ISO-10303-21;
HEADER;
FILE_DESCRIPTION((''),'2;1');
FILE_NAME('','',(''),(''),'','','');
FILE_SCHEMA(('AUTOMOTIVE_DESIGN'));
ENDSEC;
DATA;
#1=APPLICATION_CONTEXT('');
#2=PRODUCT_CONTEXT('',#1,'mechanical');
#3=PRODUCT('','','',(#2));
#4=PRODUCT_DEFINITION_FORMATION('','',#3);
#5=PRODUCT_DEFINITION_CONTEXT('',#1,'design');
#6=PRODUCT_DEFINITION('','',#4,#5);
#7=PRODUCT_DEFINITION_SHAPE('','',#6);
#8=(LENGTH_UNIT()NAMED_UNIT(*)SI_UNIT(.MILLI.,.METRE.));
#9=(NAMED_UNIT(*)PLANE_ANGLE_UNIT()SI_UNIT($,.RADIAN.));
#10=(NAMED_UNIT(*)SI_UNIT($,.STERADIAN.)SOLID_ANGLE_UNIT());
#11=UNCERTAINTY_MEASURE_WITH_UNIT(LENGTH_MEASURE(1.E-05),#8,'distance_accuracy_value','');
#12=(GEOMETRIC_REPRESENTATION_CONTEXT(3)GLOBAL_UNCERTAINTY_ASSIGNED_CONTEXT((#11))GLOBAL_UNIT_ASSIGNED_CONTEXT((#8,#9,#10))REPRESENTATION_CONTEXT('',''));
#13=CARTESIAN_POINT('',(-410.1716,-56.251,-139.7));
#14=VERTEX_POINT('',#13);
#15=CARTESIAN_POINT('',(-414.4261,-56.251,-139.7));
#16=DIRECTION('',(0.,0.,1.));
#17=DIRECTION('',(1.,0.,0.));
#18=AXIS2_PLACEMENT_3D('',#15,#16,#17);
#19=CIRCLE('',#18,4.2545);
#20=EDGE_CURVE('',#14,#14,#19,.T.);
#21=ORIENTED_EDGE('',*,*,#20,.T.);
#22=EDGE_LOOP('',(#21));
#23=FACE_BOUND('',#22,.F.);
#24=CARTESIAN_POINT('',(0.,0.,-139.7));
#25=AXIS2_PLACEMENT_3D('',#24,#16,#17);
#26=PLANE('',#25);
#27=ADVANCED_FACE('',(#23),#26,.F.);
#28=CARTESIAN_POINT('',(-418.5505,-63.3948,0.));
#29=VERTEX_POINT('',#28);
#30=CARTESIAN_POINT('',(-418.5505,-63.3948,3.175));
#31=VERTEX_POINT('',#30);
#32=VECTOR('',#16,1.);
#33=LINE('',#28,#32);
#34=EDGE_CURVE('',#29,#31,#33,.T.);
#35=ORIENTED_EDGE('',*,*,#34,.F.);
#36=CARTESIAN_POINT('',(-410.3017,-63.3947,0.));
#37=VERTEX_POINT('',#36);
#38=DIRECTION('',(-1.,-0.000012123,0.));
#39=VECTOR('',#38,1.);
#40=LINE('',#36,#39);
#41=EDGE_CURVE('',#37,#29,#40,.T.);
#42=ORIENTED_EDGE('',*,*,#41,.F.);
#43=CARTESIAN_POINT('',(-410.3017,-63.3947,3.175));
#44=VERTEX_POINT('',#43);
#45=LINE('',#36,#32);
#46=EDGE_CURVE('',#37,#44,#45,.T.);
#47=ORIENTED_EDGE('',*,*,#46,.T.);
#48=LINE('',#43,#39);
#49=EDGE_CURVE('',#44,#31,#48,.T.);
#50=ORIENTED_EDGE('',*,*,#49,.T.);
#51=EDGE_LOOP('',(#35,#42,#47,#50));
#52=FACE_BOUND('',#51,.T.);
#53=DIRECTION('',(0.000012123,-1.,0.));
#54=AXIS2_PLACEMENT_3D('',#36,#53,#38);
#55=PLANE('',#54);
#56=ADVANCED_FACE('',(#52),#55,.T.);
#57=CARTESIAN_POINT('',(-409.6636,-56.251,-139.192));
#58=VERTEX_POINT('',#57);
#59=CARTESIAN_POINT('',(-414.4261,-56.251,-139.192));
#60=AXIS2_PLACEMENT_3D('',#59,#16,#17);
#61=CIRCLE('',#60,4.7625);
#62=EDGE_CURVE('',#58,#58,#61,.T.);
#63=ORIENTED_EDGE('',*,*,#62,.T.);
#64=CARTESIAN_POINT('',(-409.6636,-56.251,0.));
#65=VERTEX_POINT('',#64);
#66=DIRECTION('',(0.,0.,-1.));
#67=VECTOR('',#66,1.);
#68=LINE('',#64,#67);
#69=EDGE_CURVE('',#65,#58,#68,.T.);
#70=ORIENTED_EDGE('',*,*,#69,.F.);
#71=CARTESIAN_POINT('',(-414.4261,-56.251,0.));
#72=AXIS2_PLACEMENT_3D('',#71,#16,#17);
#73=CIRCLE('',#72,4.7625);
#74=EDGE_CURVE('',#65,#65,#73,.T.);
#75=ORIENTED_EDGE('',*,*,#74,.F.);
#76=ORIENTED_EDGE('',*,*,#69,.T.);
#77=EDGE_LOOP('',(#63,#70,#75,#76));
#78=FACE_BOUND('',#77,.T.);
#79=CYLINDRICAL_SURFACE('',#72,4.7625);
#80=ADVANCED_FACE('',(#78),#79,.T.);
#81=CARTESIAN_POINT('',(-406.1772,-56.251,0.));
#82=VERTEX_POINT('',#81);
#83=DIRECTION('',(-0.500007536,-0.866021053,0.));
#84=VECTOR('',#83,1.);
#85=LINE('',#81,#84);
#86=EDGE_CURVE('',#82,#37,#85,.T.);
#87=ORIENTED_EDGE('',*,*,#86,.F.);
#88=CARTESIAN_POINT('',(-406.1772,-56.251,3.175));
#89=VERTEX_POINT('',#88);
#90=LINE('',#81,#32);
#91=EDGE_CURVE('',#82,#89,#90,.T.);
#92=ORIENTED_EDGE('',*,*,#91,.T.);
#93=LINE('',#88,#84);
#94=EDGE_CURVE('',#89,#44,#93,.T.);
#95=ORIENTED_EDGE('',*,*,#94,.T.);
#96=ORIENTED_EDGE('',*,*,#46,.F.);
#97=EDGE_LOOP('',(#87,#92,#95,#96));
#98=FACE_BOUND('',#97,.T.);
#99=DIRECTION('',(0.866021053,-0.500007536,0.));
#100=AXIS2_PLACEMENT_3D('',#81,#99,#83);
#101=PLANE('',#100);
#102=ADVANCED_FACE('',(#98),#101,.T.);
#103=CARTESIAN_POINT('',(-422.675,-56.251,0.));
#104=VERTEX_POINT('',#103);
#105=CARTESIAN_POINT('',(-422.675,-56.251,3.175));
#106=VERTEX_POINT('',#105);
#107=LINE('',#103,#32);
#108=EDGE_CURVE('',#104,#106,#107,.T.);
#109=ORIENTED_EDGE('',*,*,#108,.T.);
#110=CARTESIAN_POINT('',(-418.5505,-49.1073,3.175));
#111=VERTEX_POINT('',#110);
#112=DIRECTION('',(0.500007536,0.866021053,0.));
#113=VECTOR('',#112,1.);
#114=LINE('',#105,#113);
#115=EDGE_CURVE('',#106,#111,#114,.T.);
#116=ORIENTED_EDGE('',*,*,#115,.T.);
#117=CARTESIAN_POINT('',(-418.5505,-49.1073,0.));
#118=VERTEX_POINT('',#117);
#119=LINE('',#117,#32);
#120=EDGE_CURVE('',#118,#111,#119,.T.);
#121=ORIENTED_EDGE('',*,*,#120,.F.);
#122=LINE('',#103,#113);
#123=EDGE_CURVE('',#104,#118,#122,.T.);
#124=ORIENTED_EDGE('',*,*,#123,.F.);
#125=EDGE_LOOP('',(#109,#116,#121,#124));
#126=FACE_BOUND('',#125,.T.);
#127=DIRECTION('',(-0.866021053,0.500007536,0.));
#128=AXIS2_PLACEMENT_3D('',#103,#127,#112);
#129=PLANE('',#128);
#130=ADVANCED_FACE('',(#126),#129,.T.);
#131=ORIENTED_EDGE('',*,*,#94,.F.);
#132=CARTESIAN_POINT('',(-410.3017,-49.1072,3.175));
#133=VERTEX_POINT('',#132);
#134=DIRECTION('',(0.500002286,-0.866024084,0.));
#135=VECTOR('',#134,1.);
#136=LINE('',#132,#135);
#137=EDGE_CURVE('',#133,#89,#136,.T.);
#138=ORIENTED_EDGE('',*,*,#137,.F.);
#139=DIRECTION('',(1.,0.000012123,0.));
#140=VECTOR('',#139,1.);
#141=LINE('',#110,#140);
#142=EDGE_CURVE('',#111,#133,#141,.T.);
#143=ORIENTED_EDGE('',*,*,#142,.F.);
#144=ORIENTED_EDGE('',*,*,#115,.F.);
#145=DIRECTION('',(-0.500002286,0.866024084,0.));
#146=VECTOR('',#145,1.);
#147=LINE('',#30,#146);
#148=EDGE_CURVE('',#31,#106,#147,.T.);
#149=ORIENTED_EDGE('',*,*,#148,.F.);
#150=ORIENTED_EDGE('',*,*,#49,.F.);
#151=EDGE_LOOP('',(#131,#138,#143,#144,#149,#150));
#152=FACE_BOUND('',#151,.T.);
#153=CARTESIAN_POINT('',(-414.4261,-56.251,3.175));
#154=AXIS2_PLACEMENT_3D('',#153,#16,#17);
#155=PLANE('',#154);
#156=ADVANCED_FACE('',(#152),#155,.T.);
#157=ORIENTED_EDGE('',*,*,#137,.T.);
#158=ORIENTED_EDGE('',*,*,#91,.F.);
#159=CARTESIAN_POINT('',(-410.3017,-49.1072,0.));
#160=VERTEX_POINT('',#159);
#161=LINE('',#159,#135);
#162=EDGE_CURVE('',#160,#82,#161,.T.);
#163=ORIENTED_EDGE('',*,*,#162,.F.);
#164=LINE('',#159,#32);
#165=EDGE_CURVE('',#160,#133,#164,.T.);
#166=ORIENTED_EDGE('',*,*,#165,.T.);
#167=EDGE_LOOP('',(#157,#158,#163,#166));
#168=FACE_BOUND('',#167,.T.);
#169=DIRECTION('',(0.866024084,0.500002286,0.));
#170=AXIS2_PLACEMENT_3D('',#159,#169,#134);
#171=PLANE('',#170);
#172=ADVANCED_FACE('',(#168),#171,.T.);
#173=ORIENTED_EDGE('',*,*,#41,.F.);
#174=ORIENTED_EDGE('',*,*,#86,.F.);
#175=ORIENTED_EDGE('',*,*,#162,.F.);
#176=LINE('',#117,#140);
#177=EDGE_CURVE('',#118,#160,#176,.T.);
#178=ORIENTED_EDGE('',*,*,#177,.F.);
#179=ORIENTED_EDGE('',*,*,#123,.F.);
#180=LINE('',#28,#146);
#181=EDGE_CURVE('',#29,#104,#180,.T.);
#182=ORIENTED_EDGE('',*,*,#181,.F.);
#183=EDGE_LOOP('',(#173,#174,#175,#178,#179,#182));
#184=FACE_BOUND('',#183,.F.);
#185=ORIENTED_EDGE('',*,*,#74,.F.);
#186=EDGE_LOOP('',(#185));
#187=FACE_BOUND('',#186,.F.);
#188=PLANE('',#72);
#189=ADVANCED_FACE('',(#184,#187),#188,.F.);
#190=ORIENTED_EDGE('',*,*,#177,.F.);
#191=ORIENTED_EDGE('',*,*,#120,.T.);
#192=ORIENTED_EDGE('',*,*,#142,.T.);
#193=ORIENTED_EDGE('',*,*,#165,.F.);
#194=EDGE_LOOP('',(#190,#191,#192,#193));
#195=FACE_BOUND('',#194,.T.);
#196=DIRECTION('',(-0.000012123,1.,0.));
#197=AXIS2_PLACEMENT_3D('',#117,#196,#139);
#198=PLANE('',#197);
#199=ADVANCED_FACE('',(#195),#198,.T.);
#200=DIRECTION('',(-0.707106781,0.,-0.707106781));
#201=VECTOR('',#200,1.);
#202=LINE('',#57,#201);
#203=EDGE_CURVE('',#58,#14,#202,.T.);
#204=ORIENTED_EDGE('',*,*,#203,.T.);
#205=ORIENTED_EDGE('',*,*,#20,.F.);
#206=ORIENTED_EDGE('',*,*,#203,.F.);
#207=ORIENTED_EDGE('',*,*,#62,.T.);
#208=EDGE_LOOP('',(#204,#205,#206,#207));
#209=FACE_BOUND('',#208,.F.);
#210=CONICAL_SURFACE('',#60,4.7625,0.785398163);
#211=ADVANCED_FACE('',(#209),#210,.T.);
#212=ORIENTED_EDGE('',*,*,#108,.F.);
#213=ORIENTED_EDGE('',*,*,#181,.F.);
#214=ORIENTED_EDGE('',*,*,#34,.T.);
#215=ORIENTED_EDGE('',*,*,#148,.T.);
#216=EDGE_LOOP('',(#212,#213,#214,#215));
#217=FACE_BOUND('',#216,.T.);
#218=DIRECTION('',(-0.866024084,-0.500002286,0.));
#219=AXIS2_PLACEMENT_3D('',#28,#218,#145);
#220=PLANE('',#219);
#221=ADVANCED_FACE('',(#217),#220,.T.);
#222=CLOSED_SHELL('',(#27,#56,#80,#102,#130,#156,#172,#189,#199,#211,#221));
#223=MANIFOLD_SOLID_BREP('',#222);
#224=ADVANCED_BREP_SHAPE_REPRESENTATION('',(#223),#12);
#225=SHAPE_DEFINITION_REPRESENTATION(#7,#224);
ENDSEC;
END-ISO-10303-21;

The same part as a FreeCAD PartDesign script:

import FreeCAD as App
import Part
import Sketcher

V = App.Vector
Q = App.Units.Quantity


def edges_at(feature, points):
    """Names of the edges that pass closest to the given points."""
    edges = feature.Shape.Edges
    near = lambda p: min(range(len(edges)), key=lambda i: edges[i].distToShape(Part.Vertex(*p))[0])
    return sorted({f"Edge{near(p) + 1}" for p in points})

doc = App.newDocument("Part")
body = doc.addObject("PartDesign::Body", "Body")

# Sketch on XY plane
sketch1 = body.newObject("Sketcher::SketchObject", "Sketch")
sketch1.AttachmentSupport = (doc.getObject("XY_Plane"), [""])
sketch1.MapMode = "FlatFace"
sketch1.addGeometry(Part.Circle(V(-414.4, -56.3, 0), V(0, 0, 1), 4.8), False)
sketch1.addConstraint([
    Sketcher.Constraint("Diameter", 0, Q("0.375 in")),
    Sketcher.Constraint("DistanceX", 0, 3, -1, 1, Q("16.316 in")),
    Sketcher.Constraint("DistanceY", 0, 3, -1, 1, Q("2.2146 in")),
])
pad1 = body.newObject("PartDesign::Pad", "Pad")
pad1.Profile = sketch1
pad1.Length = Q("5.5 in")
pad1.Reversed = True

# Sketch on XY plane
sketch2 = body.newObject("Sketcher::SketchObject", "Sketch001")
sketch2.AttachmentSupport = (doc.getObject("XY_Plane"), [""])
sketch2.MapMode = "FlatFace"
sketch2.addGeometry([
    Part.LineSegment(V(-419, -49, 0), V(-423, -56, 0)),  # 0
    Part.LineSegment(V(-423, -56, 0), V(-419, -63, 0)),  # 1
    Part.LineSegment(V(-419, -63, 0), V(-410, -63, 0)),  # 2
    Part.LineSegment(V(-410, -63, 0), V(-406, -56, 0)),  # 3
    Part.LineSegment(V(-406, -56, 0), V(-410, -49, 0)),  # 4
    Part.LineSegment(V(-410, -49, 0), V(-419, -49, 0)),  # 5
], False)
sketch2.addConstraint([
    Sketcher.Constraint("Coincident", 0, 2, 1, 1),
    Sketcher.Constraint("Coincident", 1, 2, 2, 1),
    Sketcher.Constraint("Coincident", 2, 2, 3, 1),
    Sketcher.Constraint("Coincident", 3, 2, 4, 1),
    Sketcher.Constraint("Coincident", 4, 2, 5, 1),
    Sketcher.Constraint("Coincident", 5, 2, 0, 1),
    Sketcher.Constraint("Horizontal", 2),
    Sketcher.Constraint("Horizontal", 5),
    Sketcher.Constraint("Parallel", 0, 3),
    Sketcher.Constraint("Parallel", 1, 4),
    Sketcher.Constraint("Horizontal", 0, 2, 3, 2),
    Sketcher.Constraint("Vertical", 2, 2, 4, 2),
    Sketcher.Constraint("Vertical", 1, 2, 5, 2),
    Sketcher.Constraint("Angle", 0, Q("-120.0005 deg")),
    Sketcher.Constraint("DistanceY", 2, 2, 4, 2, Q("0.5625 in")),
    Sketcher.Constraint("DistanceX", 2, 1, 2, 2, Q("8.2488 mm")),
    Sketcher.Constraint("DistanceY", 0, 2, -1, 1, Q("2.2146 in")),
    Sketcher.Constraint("DistanceX", 2, 2, -1, 1, Q("16.1536 in")),
])
pad2 = body.newObject("PartDesign::Pad", "Pad001")
pad2.Profile = sketch2
pad2.Length = Q("0.125 in")
doc.recompute()

chamfer = body.newObject("PartDesign::Chamfer", "Chamfer")
chamfer.Base = (pad2, edges_at(pad2, [(-419.189, -56.251, -139.7)]))
chamfer.Size = Q("0.02 in")

doc.recompute()
